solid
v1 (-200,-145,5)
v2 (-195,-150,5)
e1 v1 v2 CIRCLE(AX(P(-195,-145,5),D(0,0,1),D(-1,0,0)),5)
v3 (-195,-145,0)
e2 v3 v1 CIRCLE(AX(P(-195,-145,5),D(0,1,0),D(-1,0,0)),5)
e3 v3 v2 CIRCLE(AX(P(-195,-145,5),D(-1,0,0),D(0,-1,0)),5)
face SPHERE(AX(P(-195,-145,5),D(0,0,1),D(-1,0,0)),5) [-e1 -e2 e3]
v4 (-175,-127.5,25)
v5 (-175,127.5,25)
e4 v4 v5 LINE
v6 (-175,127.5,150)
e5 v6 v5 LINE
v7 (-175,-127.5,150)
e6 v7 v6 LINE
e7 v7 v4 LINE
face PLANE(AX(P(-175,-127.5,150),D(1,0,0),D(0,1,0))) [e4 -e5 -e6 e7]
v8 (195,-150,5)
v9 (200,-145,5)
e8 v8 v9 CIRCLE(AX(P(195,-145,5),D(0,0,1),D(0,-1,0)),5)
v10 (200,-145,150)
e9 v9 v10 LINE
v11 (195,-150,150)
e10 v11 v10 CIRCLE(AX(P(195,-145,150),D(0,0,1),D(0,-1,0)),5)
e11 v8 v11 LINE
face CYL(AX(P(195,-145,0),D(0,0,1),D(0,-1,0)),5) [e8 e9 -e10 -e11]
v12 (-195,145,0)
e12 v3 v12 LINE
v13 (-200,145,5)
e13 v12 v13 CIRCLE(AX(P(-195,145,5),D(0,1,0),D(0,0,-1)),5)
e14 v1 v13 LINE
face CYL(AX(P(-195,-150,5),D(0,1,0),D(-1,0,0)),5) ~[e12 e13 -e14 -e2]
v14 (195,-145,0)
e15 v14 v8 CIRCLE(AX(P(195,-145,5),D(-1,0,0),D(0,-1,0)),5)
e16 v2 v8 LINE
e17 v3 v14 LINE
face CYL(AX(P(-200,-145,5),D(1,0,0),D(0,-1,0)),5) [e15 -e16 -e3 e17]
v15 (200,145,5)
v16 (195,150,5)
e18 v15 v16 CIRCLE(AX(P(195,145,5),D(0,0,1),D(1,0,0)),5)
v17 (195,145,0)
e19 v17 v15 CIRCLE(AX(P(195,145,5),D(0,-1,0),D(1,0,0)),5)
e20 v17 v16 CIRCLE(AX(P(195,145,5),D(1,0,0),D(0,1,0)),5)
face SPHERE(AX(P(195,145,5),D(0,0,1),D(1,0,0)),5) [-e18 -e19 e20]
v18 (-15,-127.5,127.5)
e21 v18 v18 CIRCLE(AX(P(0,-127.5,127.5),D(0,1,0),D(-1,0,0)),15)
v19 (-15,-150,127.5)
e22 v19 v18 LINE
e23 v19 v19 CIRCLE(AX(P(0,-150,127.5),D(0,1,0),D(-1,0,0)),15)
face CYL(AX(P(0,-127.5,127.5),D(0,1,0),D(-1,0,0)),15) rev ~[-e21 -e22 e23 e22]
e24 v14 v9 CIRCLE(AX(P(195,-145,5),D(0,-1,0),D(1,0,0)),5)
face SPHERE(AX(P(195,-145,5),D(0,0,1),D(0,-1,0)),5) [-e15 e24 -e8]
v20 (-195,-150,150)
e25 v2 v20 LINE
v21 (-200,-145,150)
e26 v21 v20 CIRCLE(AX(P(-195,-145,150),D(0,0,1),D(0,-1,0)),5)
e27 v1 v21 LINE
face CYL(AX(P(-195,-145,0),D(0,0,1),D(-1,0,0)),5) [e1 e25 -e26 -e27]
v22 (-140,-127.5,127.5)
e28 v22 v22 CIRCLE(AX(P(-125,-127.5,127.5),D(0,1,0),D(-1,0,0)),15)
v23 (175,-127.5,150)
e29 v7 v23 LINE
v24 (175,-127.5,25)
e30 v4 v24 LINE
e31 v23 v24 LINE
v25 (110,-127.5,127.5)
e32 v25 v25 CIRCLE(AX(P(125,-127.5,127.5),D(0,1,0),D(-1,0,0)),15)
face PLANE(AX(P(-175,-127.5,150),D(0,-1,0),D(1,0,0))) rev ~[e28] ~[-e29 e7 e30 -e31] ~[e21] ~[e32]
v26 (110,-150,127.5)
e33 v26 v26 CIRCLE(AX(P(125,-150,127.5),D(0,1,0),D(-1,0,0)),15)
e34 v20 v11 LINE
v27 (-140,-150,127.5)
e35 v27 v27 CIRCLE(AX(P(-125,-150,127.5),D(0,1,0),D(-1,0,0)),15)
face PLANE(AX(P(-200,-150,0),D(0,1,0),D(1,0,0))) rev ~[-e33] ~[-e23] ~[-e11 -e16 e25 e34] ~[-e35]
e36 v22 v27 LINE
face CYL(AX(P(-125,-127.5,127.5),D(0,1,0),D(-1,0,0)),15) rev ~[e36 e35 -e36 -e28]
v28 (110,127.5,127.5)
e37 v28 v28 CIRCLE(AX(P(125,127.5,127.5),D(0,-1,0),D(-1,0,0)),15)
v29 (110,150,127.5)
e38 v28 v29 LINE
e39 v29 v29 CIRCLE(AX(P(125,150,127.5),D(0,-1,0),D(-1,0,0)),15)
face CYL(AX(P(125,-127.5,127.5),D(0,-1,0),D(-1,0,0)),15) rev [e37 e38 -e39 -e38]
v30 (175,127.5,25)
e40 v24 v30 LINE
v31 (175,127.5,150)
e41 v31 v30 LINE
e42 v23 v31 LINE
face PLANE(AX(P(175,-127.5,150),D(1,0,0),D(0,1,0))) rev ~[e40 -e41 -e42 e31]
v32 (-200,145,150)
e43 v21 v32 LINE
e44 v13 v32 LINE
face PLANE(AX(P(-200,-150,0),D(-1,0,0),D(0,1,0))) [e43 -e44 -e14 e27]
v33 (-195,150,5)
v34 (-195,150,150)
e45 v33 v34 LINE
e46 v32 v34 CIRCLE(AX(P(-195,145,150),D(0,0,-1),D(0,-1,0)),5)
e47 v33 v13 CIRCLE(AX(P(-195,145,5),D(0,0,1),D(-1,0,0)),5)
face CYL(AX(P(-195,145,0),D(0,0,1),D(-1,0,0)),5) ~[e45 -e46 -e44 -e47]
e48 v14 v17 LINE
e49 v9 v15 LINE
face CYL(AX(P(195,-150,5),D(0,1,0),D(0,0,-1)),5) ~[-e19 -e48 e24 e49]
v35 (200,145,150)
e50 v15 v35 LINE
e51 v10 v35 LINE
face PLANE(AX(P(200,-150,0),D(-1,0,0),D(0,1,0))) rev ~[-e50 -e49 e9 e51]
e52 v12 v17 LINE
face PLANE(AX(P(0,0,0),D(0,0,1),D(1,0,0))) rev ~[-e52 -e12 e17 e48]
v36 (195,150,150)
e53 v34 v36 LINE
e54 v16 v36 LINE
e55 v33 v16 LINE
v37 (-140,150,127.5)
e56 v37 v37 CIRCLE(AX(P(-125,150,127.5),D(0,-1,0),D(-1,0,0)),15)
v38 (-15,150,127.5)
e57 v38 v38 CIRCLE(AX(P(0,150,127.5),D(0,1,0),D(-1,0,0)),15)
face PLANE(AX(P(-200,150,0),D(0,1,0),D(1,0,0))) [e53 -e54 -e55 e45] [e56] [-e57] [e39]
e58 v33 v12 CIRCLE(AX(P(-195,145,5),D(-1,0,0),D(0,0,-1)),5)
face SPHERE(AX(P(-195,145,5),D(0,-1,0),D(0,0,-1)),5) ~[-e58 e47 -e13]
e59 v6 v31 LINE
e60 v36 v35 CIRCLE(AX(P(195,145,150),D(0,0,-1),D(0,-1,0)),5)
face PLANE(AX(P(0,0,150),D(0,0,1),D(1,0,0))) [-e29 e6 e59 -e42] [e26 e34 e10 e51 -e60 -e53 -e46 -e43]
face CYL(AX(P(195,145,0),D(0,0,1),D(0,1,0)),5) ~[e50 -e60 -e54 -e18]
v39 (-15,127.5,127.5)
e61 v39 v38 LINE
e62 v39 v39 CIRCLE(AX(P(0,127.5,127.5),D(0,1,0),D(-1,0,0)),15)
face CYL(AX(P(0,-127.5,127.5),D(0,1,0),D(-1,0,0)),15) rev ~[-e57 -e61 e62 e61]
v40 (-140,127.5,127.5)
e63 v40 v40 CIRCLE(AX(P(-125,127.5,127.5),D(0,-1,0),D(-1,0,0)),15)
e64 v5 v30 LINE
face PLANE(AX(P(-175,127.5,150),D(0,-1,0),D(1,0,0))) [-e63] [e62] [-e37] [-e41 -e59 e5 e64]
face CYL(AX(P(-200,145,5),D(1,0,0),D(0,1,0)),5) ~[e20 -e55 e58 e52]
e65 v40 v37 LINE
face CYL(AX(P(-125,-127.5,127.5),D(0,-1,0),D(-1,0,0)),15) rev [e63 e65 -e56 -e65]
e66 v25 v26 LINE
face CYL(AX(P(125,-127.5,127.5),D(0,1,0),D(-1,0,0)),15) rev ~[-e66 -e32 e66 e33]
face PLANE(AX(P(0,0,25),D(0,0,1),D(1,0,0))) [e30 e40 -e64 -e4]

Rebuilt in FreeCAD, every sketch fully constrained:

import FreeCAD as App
import Part
import Sketcher


def edges_at(feature, points):
    """Names of the edges that pass closest to the given points."""
    edges = feature.Shape.Edges
    near = lambda p: min(range(len(edges)), key=lambda i: edges[i].distToShape(Part.Vertex(*p))[0])
    return sorted({f"Edge{near(p) + 1}" for p in points})


def add_polygon(sketch, points):
    """Adds a closed chain of lines whose ends are joined by coincident constraints."""
    first, n = sketch.GeometryCount, len(points)
    for a, b in zip(points, points[1:] + points[:1]):
        sketch.addGeometry(Part.LineSegment(App.Vector(*a, 0), App.Vector(*b, 0)), False)
    for i in range(n):
        sketch.addConstraint(Sketcher.Constraint("Coincident", first + i, 2, first + (i + 1) % n, 1))

doc = App.newDocument("Part")
body = doc.addObject("PartDesign::Body", "Body")

sketch1 = doc.addObject("Sketcher::SketchObject", "Sketch")
body.addObject(sketch1)
sketch1.AttachmentSupport = (doc.XY_Plane, [""])
sketch1.MapMode = "FlatFace"
add_polygon(sketch1, [(-200, 150), (-200, -150), (200, -150), (200, 150)])
sketch1.addConstraint(Sketcher.Constraint("Vertical", 0))
sketch1.addConstraint(Sketcher.Constraint("Horizontal", 1))
sketch1.addConstraint(Sketcher.Constraint("Vertical", 2))
sketch1.addConstraint(Sketcher.Constraint("Horizontal", 3))
sketch1.addConstraint(Sketcher.Constraint("Symmetric", 0, 2, 2, 2, -1, 1))
sketch1.addConstraint(Sketcher.Constraint("DistanceX", 1, 1, 1, 2, 400.0))
sketch1.addConstraint(Sketcher.Constraint("DistanceY", 0, 2, 0, 1, 300.0))
pad1 = doc.addObject("PartDesign::Pad", "Pad")
body.addObject(pad1)
pad1.Profile = sketch1
pad1.Length = 150

sketch2 = doc.addObject("Sketcher::SketchObject", "Sketch001")
body.addObject(sketch2)
sketch2.AttachmentSupport = (doc.XY_Plane, [""])
sketch2.MapMode = "FlatFace"
sketch2.AttachmentOffset = App.Placement(App.Vector(0, 0, 150), App.Rotation())
add_polygon(sketch2, [(-175, 128), (-175, -128), (175, -128), (175, 128)])
sketch2.addConstraint(Sketcher.Constraint("Vertical", 0))
sketch2.addConstraint(Sketcher.Constraint("Horizontal", 1))
sketch2.addConstraint(Sketcher.Constraint("Vertical", 2))
sketch2.addConstraint(Sketcher.Constraint("Horizontal", 3))
sketch2.addConstraint(Sketcher.Constraint("Symmetric", 0, 2, 2, 2, -1, 1))
sketch2.addConstraint(Sketcher.Constraint("DistanceX", 1, 1, 1, 2, 350.0))
sketch2.addConstraint(Sketcher.Constraint("DistanceY", 0, 2, 0, 1, 255.0))
pocket1 = doc.addObject("PartDesign::Pocket", "Pocket")
body.addObject(pocket1)
pocket1.Profile = sketch2
pocket1.Length = 125
doc.recompute()

fillet = doc.addObject("PartDesign::Fillet", "Fillet")
body.addObject(fillet)
fillet.Base = (pocket1, edges_at(pocket1, [
    (200, 150, 75),
    (200, -150, 75),
    (-200, -150, 75),
    (-200, 0, 0),
    (0, -150, 0),
    (200, 0, 0),
    (0, 150, 0),
    (-200, 150, 75),
]))
fillet.Radius = 5

sketch3 = doc.addObject("Sketcher::SketchObject", "Sketch002")
body.addObject(sketch3)
sketch3.AttachmentSupport = (doc.XZ_Plane, [""])
sketch3.MapMode = "FlatFace"
sketch3.AttachmentOffset = App.Placement(App.Vector(0, 0, 127.5), App.Rotation())
sketch3.addGeometry(Part.Circle(App.Vector(-125, 128, 0), App.Vector(0, 0, 1), 15), False)
sketch3.addGeometry(Part.Circle(App.Vector(125, 128, 0), App.Vector(0, 0, 1), 15), False)
sketch3.addGeometry(Part.Circle(App.Vector(0, 128, 0), App.Vector(0, 0, 1), 15), False)
sketch3.addConstraint(Sketcher.Constraint("Equal", 0, 1))
sketch3.addConstraint(Sketcher.Constraint("Equal", 1, 2))
sketch3.addConstraint(Sketcher.Constraint("Symmetric", 0, 3, 1, 3, -2))
sketch3.addConstraint(Sketcher.Constraint("PointOnObject", 2, 3, -2))
sketch3.addConstraint(Sketcher.Constraint("Horizontal", 1, 3, 2, 3))
sketch3.addConstraint(Sketcher.Constraint("Diameter", 0, 30.0))
sketch3.addConstraint(Sketcher.Constraint("DistanceX", 0, 3, -1, 1, 125.0))
sketch3.addConstraint(Sketcher.Constraint("DistanceY", -1, 1, 0, 3, 127.5))
pocket2 = doc.addObject("PartDesign::Pocket", "Pocket001")
body.addObject(pocket2)
pocket2.Profile = sketch3
pocket2.Length = 804
pocket2.Midplane = True

doc.recompute()
